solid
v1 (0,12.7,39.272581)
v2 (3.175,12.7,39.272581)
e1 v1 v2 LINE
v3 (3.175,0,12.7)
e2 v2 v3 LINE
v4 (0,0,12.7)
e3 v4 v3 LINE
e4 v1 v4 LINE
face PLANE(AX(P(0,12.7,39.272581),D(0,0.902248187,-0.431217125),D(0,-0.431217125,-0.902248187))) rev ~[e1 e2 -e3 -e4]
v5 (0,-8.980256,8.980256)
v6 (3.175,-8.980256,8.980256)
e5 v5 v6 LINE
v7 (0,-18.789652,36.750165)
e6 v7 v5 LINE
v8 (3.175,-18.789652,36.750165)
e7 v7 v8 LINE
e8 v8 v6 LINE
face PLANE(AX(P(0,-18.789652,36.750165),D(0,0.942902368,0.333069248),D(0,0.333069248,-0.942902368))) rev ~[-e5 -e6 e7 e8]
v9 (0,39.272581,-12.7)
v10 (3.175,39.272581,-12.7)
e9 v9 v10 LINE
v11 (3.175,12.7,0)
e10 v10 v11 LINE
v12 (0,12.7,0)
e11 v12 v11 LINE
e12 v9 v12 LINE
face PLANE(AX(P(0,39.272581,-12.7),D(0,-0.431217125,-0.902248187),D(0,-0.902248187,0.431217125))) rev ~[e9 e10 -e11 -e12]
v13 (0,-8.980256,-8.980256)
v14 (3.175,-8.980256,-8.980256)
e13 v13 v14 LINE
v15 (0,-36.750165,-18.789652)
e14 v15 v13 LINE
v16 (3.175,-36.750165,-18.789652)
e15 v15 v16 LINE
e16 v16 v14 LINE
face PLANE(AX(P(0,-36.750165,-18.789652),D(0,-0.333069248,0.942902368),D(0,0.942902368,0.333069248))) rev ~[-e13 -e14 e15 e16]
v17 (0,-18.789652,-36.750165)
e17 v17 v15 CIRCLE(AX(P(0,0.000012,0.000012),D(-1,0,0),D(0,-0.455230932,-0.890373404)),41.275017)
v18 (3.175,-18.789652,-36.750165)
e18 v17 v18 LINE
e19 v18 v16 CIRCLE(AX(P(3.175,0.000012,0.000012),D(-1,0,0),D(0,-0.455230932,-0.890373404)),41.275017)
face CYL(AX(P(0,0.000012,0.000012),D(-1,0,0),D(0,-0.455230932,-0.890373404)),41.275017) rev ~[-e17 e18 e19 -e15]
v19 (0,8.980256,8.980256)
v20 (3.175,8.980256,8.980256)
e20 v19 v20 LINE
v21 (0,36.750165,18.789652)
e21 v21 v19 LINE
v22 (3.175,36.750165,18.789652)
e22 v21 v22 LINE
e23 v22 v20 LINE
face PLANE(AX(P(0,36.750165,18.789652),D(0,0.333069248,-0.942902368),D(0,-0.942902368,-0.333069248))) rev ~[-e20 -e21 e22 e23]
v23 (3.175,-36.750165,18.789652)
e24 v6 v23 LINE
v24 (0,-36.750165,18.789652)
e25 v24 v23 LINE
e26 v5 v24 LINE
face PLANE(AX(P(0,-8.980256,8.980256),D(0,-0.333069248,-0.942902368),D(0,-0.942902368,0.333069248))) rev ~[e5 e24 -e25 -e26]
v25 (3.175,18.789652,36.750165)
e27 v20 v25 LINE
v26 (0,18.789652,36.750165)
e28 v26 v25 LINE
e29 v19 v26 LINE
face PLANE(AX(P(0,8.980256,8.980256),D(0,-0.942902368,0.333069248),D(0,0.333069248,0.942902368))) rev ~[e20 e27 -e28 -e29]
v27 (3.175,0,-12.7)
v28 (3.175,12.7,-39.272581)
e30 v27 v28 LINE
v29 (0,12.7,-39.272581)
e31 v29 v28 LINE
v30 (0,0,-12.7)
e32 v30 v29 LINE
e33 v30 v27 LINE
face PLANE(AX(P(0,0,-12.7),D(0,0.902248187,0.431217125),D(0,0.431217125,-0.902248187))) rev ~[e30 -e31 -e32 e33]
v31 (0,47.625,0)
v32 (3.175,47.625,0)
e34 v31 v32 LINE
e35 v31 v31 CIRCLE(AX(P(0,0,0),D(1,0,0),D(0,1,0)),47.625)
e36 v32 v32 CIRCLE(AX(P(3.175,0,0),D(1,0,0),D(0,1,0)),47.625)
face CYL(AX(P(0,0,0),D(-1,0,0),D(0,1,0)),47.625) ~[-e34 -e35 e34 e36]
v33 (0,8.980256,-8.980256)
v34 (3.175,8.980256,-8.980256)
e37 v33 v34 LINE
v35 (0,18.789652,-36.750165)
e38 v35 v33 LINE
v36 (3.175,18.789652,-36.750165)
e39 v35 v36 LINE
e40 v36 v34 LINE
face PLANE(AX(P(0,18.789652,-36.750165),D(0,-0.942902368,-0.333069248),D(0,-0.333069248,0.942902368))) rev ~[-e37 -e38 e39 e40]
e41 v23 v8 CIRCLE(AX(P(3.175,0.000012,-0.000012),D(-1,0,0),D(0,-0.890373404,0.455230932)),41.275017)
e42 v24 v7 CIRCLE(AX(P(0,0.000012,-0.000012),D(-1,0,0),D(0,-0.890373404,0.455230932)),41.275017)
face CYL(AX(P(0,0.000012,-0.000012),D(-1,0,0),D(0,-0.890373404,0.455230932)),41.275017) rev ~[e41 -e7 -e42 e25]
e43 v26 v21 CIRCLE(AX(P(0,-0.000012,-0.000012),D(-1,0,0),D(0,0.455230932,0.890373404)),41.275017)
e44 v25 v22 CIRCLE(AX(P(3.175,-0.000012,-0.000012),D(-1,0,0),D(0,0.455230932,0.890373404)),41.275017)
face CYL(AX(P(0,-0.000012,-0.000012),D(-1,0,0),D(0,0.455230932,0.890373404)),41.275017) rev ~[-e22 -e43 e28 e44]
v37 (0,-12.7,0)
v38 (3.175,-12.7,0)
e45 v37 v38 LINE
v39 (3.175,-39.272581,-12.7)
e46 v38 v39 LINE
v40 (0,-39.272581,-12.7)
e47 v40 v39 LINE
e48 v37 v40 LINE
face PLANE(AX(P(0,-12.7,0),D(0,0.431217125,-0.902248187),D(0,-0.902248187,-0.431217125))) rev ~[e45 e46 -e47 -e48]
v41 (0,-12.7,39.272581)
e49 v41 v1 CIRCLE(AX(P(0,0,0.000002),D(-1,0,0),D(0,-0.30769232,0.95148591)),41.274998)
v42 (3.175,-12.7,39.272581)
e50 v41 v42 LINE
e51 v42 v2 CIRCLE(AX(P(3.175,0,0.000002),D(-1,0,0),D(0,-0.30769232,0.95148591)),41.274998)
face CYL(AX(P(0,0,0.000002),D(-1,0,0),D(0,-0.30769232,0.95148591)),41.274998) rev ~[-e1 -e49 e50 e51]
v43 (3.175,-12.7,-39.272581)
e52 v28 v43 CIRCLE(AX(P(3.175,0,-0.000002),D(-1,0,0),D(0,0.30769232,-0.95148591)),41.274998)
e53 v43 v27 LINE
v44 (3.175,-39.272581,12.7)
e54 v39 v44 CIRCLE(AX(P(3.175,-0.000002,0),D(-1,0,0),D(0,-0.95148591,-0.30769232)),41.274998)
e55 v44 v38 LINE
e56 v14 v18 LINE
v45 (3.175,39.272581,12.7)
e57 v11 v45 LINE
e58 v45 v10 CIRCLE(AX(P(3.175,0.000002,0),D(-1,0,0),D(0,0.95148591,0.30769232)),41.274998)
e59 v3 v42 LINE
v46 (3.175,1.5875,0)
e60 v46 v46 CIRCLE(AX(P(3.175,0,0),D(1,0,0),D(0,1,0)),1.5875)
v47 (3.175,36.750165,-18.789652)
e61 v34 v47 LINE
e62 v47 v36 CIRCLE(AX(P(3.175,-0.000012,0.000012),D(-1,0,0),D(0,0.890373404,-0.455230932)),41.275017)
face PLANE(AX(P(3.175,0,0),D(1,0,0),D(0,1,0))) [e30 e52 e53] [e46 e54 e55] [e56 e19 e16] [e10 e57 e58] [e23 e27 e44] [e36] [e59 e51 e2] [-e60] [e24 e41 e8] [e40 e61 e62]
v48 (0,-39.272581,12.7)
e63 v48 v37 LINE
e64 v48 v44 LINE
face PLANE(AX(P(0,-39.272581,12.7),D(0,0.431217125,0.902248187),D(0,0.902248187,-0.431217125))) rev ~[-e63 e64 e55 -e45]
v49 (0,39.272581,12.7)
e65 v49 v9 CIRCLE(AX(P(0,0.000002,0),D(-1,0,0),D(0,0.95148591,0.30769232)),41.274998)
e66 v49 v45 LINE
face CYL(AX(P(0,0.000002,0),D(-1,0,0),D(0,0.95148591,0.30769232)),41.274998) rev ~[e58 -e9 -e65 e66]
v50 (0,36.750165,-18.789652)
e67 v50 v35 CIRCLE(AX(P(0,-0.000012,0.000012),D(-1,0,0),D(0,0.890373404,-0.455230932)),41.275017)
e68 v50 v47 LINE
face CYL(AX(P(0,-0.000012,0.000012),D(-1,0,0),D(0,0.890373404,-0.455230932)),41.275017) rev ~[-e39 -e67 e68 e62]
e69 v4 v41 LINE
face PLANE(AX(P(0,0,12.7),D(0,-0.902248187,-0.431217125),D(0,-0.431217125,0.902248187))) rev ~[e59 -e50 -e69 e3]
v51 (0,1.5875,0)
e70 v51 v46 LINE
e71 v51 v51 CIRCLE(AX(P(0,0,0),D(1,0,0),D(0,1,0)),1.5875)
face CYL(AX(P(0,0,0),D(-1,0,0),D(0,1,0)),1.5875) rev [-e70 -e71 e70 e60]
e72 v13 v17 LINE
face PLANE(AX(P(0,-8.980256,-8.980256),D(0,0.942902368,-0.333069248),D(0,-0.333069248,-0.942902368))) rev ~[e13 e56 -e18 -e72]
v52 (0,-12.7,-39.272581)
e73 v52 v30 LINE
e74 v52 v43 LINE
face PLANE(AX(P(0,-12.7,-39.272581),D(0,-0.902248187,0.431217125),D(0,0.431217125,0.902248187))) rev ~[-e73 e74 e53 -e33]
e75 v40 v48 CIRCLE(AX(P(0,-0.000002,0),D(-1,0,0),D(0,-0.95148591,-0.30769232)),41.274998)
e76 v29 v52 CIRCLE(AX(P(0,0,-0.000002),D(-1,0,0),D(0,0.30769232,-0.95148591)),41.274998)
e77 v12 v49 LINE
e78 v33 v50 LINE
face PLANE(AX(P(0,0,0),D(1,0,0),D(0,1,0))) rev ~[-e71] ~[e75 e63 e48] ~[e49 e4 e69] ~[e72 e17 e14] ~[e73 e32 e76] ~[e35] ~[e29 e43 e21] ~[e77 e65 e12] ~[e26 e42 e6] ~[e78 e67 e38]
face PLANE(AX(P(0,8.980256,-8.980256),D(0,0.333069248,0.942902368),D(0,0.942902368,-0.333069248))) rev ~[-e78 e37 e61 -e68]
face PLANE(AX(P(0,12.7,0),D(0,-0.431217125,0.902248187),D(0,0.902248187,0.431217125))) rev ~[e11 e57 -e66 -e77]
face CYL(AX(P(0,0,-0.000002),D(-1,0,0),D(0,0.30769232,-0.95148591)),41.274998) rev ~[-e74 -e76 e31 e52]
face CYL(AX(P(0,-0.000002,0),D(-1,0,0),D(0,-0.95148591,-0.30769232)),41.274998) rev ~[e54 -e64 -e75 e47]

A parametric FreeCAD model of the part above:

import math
import FreeCAD as App
import Part
import Sketcher

V = App.Vector
Q = App.Units.Quantity

doc = App.newDocument("Part")
params = doc.addObject("Spreadsheet::Sheet", "Params")
for row, (alias, value) in enumerate([
    ("sketch1_diameter", "3.75 in"),
    ("sketch1_diameter2", "0.125 in"),
    ("sketch1_radius", "1.6249999 in"),
    ("pad1_length", "0.125 in"),
], start=1):
    params.set(f"A{row}", alias)
    params.set(f"B{row}", "=" + value)
    params.setAlias(f"B{row}", alias)

body = doc.addObject("PartDesign::Body", "Body")

# Sketch on YZ plane
sketch1 = doc.addObject("Sketcher::SketchObject", "Sketch")
body.addObject(sketch1)
sketch1.AttachmentSupport = (doc.YZ_Plane, [""])
sketch1.MapMode = "FlatFace"
sketch1.addGeometry([
    Part.Circle(V(0, 0, 0), V(0, 0, 1), 47.625),  # 0
    Part.LineSegment(V(-36.750165, -18.789652, 0), V(-8.980256, -8.980256, 0)),  # 1
    Part.LineSegment(V(-8.980256, -8.980256, 0), V(-18.789652, -36.750165, 0)),  # 2
    Part.ArcOfCircle(Part.Circle(V(0.000012, 0.000012, 0), V(0, 0, 1), 41.275017), math.radians(-152.920206), math.radians(-117.079794)),  # 3
    Part.LineSegment(V(-12.7, -39.272581, 0), V(0, -12.7, 0)),  # 4
    Part.LineSegment(V(0, -12.7, 0), V(12.7, -39.272581, 0)),  # 5
    Part.ArcOfCircle(Part.Circle(V(0, -0.000002, 0), V(0, 0, 1), 41.274998), math.radians(-107.920214), math.radians(-72.079786)),  # 6
    Part.LineSegment(V(18.789652, -36.750165, 0), V(8.980256, -8.980256, 0)),  # 7
    Part.LineSegment(V(8.980256, -8.980256, 0), V(36.750165, -18.789652, 0)),  # 8
    Part.ArcOfCircle(Part.Circle(V(-0.000012, 0.000012, 0), V(0, 0, 1), 41.275017), math.radians(-62.920206), math.radians(-27.079794)),  # 9
    Part.LineSegment(V(-39.272581, 12.7, 0), V(-12.7, 0, 0)),  # 10
    Part.LineSegment(V(-12.7, 0, 0), V(-39.272581, -12.7, 0)),  # 11
    Part.ArcOfCircle(Part.Circle(V(-0.000002, 0, 0), V(0, 0, 1), 41.274998), math.radians(162.079786), math.radians(197.920214)),  # 12
    Part.LineSegment(V(-18.789652, 36.750165, 0), V(-8.980256, 8.980256, 0)),  # 13
    Part.LineSegment(V(-8.980256, 8.980256, 0), V(-36.750165, 18.789652, 0)),  # 14
    Part.ArcOfCircle(Part.Circle(V(0.000012, -0.000012, 0), V(0, 0, 1), 41.275017), math.radians(117.079794), math.radians(152.920206)),  # 15
    Part.Circle(V(0, 0, 0), V(0, 0, 1), 1.5875),  # 16
    Part.LineSegment(V(39.272581, -12.7, 0), V(12.7, 0, 0)),  # 17
    Part.LineSegment(V(12.7, 0, 0), V(39.272581, 12.7, 0)),  # 18
    Part.ArcOfCircle(Part.Circle(V(0.000002, 0, 0), V(0, 0, 1), 41.274998), math.radians(-17.920214), math.radians(17.920214)),  # 19
    Part.LineSegment(V(12.7, 39.272581, 0), V(0, 12.7, 0)),  # 20
    Part.LineSegment(V(0, 12.7, 0), V(-12.7, 39.272581, 0)),  # 21
    Part.ArcOfCircle(Part.Circle(V(0, 0.000002, 0), V(0, 0, 1), 41.274998), math.radians(72.079786), math.radians(107.920214)),  # 22
    Part.LineSegment(V(36.750165, 18.789652, 0), V(8.980256, 8.980256, 0)),  # 23
    Part.LineSegment(V(8.980256, 8.980256, 0), V(18.789652, 36.750165, 0)),  # 24
    Part.ArcOfCircle(Part.Circle(V(-0.000012, -0.000012, 0), V(0, 0, 1), 41.275017), math.radians(27.079794), math.radians(62.920206)),  # 25
], False)
sketch1.addConstraint([
    Sketcher.Constraint("Coincident", 1, 2, 2, 1),
    Sketcher.Constraint("Coincident", 2, 2, 3, 2),
    Sketcher.Constraint("Coincident", 3, 1, 1, 1),
    Sketcher.Constraint("Coincident", 4, 2, 5, 1),
    Sketcher.Constraint("Coincident", 5, 2, 6, 2),
    Sketcher.Constraint("Coincident", 6, 1, 4, 1),
    Sketcher.Constraint("Coincident", 7, 2, 8, 1),
    Sketcher.Constraint("Coincident", 8, 2, 9, 2),
    Sketcher.Constraint("Coincident", 9, 1, 7, 1),
    Sketcher.Constraint("Coincident", 10, 2, 11, 1),
    Sketcher.Constraint("Coincident", 11, 2, 12, 2),
    Sketcher.Constraint("Coincident", 12, 1, 10, 1),
    Sketcher.Constraint("Coincident", 13, 2, 14, 1),
    Sketcher.Constraint("Coincident", 14, 2, 15, 2),
    Sketcher.Constraint("Coincident", 15, 1, 13, 1),
    Sketcher.Constraint("Coincident", 17, 2, 18, 1),
    Sketcher.Constraint("Coincident", 18, 2, 19, 2),
    Sketcher.Constraint("Coincident", 19, 1, 17, 1),
    Sketcher.Constraint("Coincident", 20, 2, 21, 1),
    Sketcher.Constraint("Coincident", 21, 2, 22, 2),
    Sketcher.Constraint("Coincident", 22, 1, 20, 1),
    Sketcher.Constraint("Coincident", 23, 2, 24, 1),
    Sketcher.Constraint("Coincident", 24, 2, 25, 2),
    Sketcher.Constraint("Coincident", 25, 1, 23, 1),
    Sketcher.Constraint("Coincident", 0, 3, -1, 1),
    Sketcher.Constraint("Coincident", 6, 3, -1, 1),
    Sketcher.Constraint("Coincident", 12, 3, -1, 1),
    Sketcher.Constraint("Coincident", 16, 3, -1, 1),
    Sketcher.Constraint("Coincident", 19, 3, -1, 1),
    Sketcher.Constraint("Coincident", 22, 3, -1, 1),
    Sketcher.Constraint("Equal", 3, 9),
    Sketcher.Constraint("Equal", 6, 12),
    Sketcher.Constraint("Equal", 9, 15),
    Sketcher.Constraint("Equal", 12, 19),
    Sketcher.Constraint("Equal", 19, 22),
    Sketcher.Constraint("Equal", 15, 25),
    Sketcher.Constraint("Symmetric", 9, 3, 15, 3, -1, 1),
    Sketcher.Constraint("Symmetric", 3, 3, 25, 3, -1, 1),
    Sketcher.Constraint("Symmetric", 7, 2, 13, 2, -1, 1),
    Sketcher.Constraint("Symmetric", 10, 2, 17, 2, -1, 1),
    Sketcher.Constraint("Symmetric", 4, 2, 20, 2, -1, 1),
    Sketcher.Constraint("Symmetric", 1, 2, 23, 2, -1, 1),
    Sketcher.Constraint("Symmetric", 3, 3, 9, 3, -2),
    Sketcher.Constraint("Symmetric", 1, 2, 7, 2, -2),
    Sketcher.Constraint("PointOnObject", 4, 2, -2),
    Sketcher.Constraint("PointOnObject", 10, 2, -1),
    Sketcher.Constraint("Perpendicular", 1, 7),
    Sketcher.Constraint("Perpendicular", 2, 8),
    Sketcher.Constraint("Perpendicular", 4, 10),
    Sketcher.Constraint("Perpendicular", 5, 11),
    Sketcher.Constraint("Parallel", 7, 13),
    Sketcher.Constraint("Parallel", 8, 14),
    Sketcher.Constraint("Parallel", 10, 17),
    Sketcher.Constraint("Parallel", 11, 18),
    Sketcher.Constraint("Perpendicular", 17, 20),
    Sketcher.Constraint("Perpendicular", 18, 21),
    Sketcher.Constraint("Perpendicular", 13, 23),
    Sketcher.Constraint("Perpendicular", 14, 24),
    Sketcher.Constraint("Horizontal", 5, 2, 6, 1),
    Sketcher.Constraint("Horizontal", 3, 1, 8, 2),
    Sketcher.Constraint("Horizontal", 4, 2, 11, 2),
    Sketcher.Constraint("Vertical", 6, 1, 10, 2),
    Sketcher.Constraint("Equal", 1, 2),
    Sketcher.Constraint("Equal", 2, 4),
    Sketcher.Constraint("Diameter", 0, Q("3.75 in")),
    Sketcher.Constraint("Diameter", 16, Q("0.125 in")),
    Sketcher.Constraint("Radius", 6, Q("1.6249999 in")),
    Sketcher.Constraint("DistanceX", 6, 1, 5, 2, Q("1 in")),
    Sketcher.Constraint("Radius", 3, 41.275017),
    Sketcher.Constraint("DistanceY", 3, 1, 14, 2, Q("1.4795002 in")),
    Sketcher.Constraint("DistanceX", 2, 2, -1, 1, 18.789652),
    Sketcher.Constraint("DistanceY", 2, 2, 1, 2, 27.769909),
])
sketch1.setExpression("Constraints[64]", "Params.sketch1_diameter")
sketch1.setExpression("Constraints[65]", "Params.sketch1_diameter2")
sketch1.setExpression("Constraints[66]", "Params.sketch1_radius")
pad1 = doc.addObject("PartDesign::Pad", "Pad")
body.addObject(pad1)
pad1.Profile = sketch1
pad1.setExpression("Length", "Params.pad1_length")

doc.recompute()
